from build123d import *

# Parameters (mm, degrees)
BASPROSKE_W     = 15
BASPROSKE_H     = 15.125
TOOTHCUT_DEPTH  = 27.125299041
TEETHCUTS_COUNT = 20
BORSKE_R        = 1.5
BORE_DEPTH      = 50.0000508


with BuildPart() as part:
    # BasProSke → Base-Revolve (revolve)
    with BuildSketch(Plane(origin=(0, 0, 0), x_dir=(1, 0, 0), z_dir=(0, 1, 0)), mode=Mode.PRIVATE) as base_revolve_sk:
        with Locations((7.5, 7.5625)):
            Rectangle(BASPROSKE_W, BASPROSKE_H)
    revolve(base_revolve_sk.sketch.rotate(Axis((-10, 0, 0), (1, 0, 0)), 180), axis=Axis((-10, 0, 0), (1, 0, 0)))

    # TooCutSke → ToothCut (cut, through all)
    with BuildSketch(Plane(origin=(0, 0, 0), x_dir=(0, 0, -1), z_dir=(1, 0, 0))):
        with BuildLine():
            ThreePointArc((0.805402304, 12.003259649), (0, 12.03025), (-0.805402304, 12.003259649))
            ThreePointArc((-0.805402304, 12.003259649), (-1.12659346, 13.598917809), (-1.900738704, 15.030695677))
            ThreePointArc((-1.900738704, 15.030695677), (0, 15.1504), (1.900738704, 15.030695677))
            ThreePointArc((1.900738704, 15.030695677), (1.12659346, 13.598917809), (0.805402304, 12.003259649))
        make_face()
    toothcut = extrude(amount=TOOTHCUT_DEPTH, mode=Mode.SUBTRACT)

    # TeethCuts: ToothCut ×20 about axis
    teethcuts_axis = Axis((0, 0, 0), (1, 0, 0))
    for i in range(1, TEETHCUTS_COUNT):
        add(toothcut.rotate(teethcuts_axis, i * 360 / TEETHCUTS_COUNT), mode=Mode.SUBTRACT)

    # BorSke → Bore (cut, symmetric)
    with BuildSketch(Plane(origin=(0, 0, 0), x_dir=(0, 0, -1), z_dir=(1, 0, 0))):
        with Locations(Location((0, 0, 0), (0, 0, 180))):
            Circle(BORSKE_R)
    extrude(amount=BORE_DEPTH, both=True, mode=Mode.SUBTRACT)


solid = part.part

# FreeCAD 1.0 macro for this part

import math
import FreeCAD as App
import Part
import Sketcher

V = App.Vector
Q = App.Units.Quantity


def add_polygon(sketch, points):
    """Adds a closed chain of lines whose ends are joined by coincident constraints."""
    first, n = sketch.GeometryCount, len(points)
    for a, b in zip(points, points[1:] + points[:1]):
        sketch.addGeometry(Part.LineSegment(App.Vector(*a, 0), App.Vector(*b, 0)), False)
    for i in range(n):
        sketch.addConstraint(Sketcher.Constraint("Coincident", first + i, 2, first + (i + 1) % n, 1))

doc = App.newDocument("Part")
params = doc.addObject("Spreadsheet::Sheet", "Params")
for row, (alias, value) in enumerate([
    ("sketch1_width", "15 mm"),
    ("revolution_angle", "360 deg"),
    ("sketch2_radius", "5.5 mm"),
    ("sketch3_diameter", "3 mm"),
    ("pocket2_length", "100.000102 mm"),
], start=1):
    params.set(f"A{row}", alias)
    params.set(f"B{row}", "=" + value)
    params.setAlias(f"B{row}", alias)

body = doc.addObject("PartDesign::Body", "Body")

# Sketch on XZ plane
sketch1 = body.newObject("Sketcher::SketchObject", "Sketch")
sketch1.AttachmentSupport = (doc.getObject("XZ_Plane"), [""])
sketch1.MapMode = "FlatFace"
add_polygon(sketch1, [(0, -15), (0, 0), (15, 0), (15, -15)])  # lines 0-3
sketch1.addConstraint(Sketcher.Constraint("Vertical", 0))
sketch1.addConstraint(Sketcher.Constraint("Horizontal", 1))
sketch1.addConstraint(Sketcher.Constraint("Vertical", 2))
sketch1.addConstraint(Sketcher.Constraint("Horizontal", 3))
sketch1.addConstraint(Sketcher.Constraint("Coincident", 0, 2, -1, 1))
sketch1.addConstraint(Sketcher.Constraint("DistanceX", 1, 1, 1, 2, Q("15 mm")))
sketch1.addConstraint(Sketcher.Constraint("DistanceY", 0, 1, 0, 2, Q("15.125 mm")))
sketch1.setExpression("Constraints[9]", "Params.sketch1_width")
revolution = body.newObject("PartDesign::Revolution", "Revolution")
revolution.Profile = sketch1
revolution.ReferenceAxis = (sketch1, ["H_Axis"])
revolution.setExpression("Angle", "Params.revolution_angle")

# Sketch on YZ plane
sketch2 = body.newObject("Sketcher::SketchObject", "Sketch001")
sketch2.AttachmentSupport = (doc.getObject("YZ_Plane"), [""])
sketch2.MapMode = "FlatFace"
sketch2.addGeometry(Part.ArcOfCircle(Part.Circle(V(0, 0, 0), V(0, 0, 1), 12), math.radians(-3.84), math.radians(3.84)), False)
sketch2.addGeometry(Part.ArcOfCircle(Part.Circle(V(11.7, -6.3, 0), V(0, 0, 1), 5.5), math.radians(53), math.radians(87)), False)
sketch2.addGeometry(Part.ArcOfCircle(Part.Circle(V(0, 0, 0), V(0, 0, 1), 15.2), math.radians(-7.21), math.radians(7.21)), False)
sketch2.addGeometry(Part.ArcOfCircle(Part.Circle(V(11.7, 6.3, 0), V(0, 0, 1), 5.5), math.radians(-87), math.radians(-53)), False)
sketch2.addConstraint(Sketcher.Constraint("Coincident", 0, 1, 1, 2))
sketch2.addConstraint(Sketcher.Constraint("Coincident", 1, 1, 2, 1))
sketch2.addConstraint(Sketcher.Constraint("Coincident", 2, 2, 3, 2))
sketch2.addConstraint(Sketcher.Constraint("Coincident", 3, 1, 0, 2))
sketch2.addConstraint(Sketcher.Constraint("Coincident", 0, 3, -1, 1))
sketch2.addConstraint(Sketcher.Constraint("Coincident", 2, 3, -1, 1))
sketch2.addConstraint(Sketcher.Constraint("Equal", 1, 3))
sketch2.addConstraint(Sketcher.Constraint("Symmetric", 1, 3, 3, 3, -1))
sketch2.addConstraint(Sketcher.Constraint("Radius", 1, Q("5.5 mm")))
sketch2.addConstraint(Sketcher.Constraint("Radius", 2, Q("15.1504 mm")))
sketch2.addConstraint(Sketcher.Constraint("Radius", 0, Q("12.03025 mm")))
sketch2.addConstraint(Sketcher.Constraint("DistanceX", -1, 1, 0, 1, Q("12.00326 mm")))
sketch2.addConstraint(Sketcher.Constraint("DistanceY", 1, 1, -1, 1, Q("1.900739 mm")))
sketch2.setExpression("Constraints[8]", "Params.sketch2_radius")
pocket1 = body.newObject("PartDesign::Pocket", "Pocket")
pocket1.Profile = sketch2
pocket1.Type = "ThroughAll"
pocket1.Reversed = True
doc.recompute()

polarpattern = body.newObject("PartDesign::PolarPattern", "PolarPattern")
polarpattern.Originals = [pocket1]
polarpattern.Axis = (doc.getObject("X_Axis"), [""])
polarpattern.Angle = 360
polarpattern.Occurrences = 20
body.Tip = polarpattern

# Sketch on YZ plane
sketch3 = body.newObject("Sketcher::SketchObject", "Sketch002")
sketch3.AttachmentSupport = (doc.getObject("YZ_Plane"), [""])
sketch3.MapMode = "FlatFace"
sketch3.addGeometry(Part.Circle(V(0, 0, 0), V(0, 0, 1), 1.5), False)
sketch3.addConstraint(Sketcher.Constraint("Coincident", 0, 3, -1, 1))
sketch3.addConstraint(Sketcher.Constraint("Diameter", 0, Q("3 mm")))
sketch3.setExpression("Constraints[1]", "Params.sketch3_diameter")
pocket2 = body.newObject("PartDesign::Pocket", "Pocket001")
pocket2.Profile = sketch3
pocket2.setExpression("Length", "Params.pocket2_length")
pocket2.Midplane = True

doc.recompute()
